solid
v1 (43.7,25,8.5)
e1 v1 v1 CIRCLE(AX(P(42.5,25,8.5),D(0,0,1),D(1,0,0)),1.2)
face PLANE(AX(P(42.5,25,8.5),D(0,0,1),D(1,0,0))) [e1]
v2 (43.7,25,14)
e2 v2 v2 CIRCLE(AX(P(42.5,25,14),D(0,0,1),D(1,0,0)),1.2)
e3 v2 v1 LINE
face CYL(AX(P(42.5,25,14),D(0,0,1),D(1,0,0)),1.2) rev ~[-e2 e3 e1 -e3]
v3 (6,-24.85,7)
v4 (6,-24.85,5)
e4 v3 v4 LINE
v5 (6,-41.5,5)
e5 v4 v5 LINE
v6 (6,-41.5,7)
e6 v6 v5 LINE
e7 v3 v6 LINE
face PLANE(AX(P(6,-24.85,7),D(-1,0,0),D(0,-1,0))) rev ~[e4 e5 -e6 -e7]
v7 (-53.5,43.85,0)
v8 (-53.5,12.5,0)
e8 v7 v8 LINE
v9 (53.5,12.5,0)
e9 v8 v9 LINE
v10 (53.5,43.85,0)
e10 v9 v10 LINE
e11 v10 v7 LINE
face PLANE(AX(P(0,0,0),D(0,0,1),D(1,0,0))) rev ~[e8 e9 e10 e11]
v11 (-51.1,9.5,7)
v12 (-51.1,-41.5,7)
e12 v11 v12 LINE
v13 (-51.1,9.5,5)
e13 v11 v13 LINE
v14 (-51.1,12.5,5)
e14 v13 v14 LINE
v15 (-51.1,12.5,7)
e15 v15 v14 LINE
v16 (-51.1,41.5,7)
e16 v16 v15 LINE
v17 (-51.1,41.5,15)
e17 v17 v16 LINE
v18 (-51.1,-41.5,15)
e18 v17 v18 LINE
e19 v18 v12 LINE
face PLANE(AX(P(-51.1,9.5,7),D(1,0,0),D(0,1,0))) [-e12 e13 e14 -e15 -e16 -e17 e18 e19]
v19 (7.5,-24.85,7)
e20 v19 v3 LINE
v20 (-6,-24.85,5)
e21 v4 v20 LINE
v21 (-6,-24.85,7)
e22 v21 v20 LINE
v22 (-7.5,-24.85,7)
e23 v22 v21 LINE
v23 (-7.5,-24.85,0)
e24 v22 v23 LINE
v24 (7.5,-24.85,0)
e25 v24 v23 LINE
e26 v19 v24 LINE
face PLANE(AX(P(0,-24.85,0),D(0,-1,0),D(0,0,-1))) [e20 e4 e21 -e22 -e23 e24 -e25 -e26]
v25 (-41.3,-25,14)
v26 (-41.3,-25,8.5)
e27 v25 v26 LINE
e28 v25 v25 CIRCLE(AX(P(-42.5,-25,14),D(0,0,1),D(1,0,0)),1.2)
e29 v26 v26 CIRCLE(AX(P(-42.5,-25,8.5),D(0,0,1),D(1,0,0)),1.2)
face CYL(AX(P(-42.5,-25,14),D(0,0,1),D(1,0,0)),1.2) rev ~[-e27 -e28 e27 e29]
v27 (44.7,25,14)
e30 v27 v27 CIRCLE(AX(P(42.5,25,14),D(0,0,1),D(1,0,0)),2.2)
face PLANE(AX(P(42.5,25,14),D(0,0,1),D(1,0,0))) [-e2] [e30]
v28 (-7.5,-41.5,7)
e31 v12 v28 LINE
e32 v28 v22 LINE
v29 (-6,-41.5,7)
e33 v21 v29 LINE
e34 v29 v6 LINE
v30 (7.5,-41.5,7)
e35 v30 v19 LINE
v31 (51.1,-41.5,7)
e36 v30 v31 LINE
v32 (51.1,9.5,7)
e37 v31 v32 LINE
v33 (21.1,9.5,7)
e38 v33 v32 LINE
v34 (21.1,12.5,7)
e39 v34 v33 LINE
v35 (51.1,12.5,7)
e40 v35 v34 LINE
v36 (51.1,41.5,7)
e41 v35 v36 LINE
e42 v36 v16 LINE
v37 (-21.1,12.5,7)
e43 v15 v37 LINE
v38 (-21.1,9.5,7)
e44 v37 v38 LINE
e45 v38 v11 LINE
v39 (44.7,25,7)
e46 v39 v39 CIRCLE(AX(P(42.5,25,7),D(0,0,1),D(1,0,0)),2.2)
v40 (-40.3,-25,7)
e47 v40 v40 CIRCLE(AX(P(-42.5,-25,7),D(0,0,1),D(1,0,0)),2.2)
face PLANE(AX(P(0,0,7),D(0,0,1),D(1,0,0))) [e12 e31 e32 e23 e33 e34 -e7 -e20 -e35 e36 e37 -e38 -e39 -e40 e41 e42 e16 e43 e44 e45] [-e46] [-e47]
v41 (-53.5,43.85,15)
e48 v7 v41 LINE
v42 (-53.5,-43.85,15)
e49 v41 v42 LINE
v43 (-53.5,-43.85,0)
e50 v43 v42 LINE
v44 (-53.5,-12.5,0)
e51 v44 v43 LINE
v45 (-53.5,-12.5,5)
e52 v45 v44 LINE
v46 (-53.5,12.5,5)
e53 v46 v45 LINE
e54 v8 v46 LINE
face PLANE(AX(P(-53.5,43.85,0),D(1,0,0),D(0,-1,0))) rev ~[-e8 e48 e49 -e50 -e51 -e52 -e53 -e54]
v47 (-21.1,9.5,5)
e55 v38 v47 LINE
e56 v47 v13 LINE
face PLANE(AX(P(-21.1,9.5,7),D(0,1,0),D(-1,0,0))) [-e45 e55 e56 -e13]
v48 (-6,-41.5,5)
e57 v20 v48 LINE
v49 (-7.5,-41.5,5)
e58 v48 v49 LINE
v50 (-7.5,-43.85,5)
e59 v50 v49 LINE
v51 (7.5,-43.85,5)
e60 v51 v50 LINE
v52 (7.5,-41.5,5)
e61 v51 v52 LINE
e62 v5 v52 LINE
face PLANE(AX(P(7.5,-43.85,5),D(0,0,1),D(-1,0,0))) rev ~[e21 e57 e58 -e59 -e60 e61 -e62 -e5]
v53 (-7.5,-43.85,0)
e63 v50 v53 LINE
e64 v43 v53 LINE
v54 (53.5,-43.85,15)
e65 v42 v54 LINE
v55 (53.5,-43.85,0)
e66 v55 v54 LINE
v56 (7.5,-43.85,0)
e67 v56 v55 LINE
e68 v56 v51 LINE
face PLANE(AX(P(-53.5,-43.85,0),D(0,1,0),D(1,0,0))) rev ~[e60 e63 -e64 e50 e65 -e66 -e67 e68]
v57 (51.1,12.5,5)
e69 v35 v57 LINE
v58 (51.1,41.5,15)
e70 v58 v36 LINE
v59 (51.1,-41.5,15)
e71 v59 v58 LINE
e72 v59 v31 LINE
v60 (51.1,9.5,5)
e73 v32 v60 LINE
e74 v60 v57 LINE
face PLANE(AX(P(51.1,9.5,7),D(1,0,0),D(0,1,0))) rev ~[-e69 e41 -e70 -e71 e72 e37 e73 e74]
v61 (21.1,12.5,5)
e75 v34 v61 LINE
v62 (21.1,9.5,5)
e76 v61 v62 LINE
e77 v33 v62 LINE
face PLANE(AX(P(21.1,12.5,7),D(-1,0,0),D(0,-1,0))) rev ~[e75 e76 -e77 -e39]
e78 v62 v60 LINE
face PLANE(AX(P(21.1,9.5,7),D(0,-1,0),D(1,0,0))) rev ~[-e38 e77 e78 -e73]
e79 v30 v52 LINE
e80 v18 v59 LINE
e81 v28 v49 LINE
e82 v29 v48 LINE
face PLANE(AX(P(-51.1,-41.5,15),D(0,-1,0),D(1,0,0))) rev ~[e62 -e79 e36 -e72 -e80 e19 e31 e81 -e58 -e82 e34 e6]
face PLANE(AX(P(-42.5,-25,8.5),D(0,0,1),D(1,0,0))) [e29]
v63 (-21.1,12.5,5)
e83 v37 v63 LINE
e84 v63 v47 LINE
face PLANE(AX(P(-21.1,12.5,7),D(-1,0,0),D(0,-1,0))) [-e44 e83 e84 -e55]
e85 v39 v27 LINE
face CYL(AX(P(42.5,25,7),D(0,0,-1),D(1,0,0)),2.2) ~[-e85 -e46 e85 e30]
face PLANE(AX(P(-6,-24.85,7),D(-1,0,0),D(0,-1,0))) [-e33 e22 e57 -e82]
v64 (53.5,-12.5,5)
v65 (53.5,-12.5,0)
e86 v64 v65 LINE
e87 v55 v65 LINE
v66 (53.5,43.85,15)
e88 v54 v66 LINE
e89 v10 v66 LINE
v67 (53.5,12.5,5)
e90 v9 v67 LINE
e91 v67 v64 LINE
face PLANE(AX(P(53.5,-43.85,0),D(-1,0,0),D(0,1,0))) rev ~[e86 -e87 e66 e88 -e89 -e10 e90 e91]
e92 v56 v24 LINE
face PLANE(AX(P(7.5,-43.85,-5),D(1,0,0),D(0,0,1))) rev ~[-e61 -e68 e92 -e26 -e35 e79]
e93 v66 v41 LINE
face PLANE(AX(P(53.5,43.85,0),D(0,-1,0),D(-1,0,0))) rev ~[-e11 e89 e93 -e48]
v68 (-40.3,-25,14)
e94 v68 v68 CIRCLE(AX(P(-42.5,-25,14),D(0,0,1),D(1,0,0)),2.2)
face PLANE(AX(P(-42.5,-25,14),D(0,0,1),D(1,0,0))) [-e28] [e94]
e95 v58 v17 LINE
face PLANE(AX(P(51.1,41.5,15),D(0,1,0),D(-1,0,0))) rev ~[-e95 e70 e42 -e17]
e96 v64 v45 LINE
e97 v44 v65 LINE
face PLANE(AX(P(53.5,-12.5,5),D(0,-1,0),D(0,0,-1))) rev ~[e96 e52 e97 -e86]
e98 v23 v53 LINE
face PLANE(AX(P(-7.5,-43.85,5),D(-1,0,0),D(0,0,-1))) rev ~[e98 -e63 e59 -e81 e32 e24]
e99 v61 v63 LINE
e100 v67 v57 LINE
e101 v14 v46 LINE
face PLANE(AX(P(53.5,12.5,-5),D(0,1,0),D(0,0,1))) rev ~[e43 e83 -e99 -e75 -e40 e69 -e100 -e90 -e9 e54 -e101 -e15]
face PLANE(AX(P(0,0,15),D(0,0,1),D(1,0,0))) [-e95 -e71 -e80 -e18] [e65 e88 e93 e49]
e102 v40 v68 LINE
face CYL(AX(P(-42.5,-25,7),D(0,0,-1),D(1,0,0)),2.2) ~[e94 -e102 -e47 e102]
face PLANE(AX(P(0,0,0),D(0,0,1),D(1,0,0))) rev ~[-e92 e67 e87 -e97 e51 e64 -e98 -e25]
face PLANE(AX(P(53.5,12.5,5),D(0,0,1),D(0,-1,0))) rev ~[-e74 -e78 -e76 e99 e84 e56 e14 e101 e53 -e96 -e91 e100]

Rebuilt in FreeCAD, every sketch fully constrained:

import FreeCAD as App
import Part
import Sketcher
from FreeCAD import Vector

doc = App.newDocument("Part")
body = doc.addObject("PartDesign::Body", "Body")

# Sketch on XY plane
sketch1 = doc.addObject("Sketcher::SketchObject", "Sketch")
body.addObject(sketch1)
sketch1.AttachmentSupport = (doc.XY_Plane, [""])
sketch1.MapMode = "FlatFace"
sketch1.addGeometry([
    Part.LineSegment(Vector(-54, -44, 0), Vector(54, -44, 0)),
    Part.LineSegment(Vector(54, -44, 0), Vector(54, 44, 0)),
    Part.LineSegment(Vector(54, 44, 0), Vector(-54, 44, 0)),
    Part.LineSegment(Vector(-54, 44, 0), Vector(-54, -44, 0)),
], False)
sketch1.addConstraint([
    Sketcher.Constraint("Coincident", 0, 2, 1, 1),
    Sketcher.Constraint("Coincident", 1, 2, 2, 1),
    Sketcher.Constraint("Coincident", 2, 2, 3, 1),
    Sketcher.Constraint("Coincident", 3, 2, 0, 1),
    Sketcher.Constraint("Horizontal", 0),
    Sketcher.Constraint("Vertical", 1),
    Sketcher.Constraint("Horizontal", 2),
    Sketcher.Constraint("Vertical", 3),
    Sketcher.Constraint("Symmetric", 0, 2, 2, 2, -1, 1),
    Sketcher.Constraint("DistanceX", 0, 1, 0, 2, 107.0),
    Sketcher.Constraint("DistanceY", 1, 1, 1, 2, 87.7),
])
pad1 = doc.addObject("PartDesign::Pad", "Pad")
body.addObject(pad1)
pad1.Profile = sketch1
pad1.Length = 15

# Sketch on XZ plane
sketch2 = doc.addObject("Sketcher::SketchObject", "Sketch001")
body.addObject(sketch2)
sketch2.AttachmentSupport = (doc.XZ_Plane, [""])
sketch2.MapMode = "FlatFace"
sketch2.AttachmentOffset = App.Placement(Vector(0, 0, 43.85), App.Rotation())
sketch2.addGeometry([
    Part.LineSegment(Vector(8, -5, 0), Vector(8, 5, 0)),
    Part.LineSegment(Vector(8, 5, 0), Vector(-8, 5, 0)),
    Part.LineSegment(Vector(-8, 5, 0), Vector(-8, -5, 0)),
    Part.LineSegment(Vector(-8, -5, 0), Vector(8, -5, 0)),
], False)
sketch2.addConstraint([
    Sketcher.Constraint("Coincident", 0, 2, 1, 1),
    Sketcher.Constraint("Coincident", 1, 2, 2, 1),
    Sketcher.Constraint("Coincident", 2, 2, 3, 1),
    Sketcher.Constraint("Coincident", 3, 2, 0, 1),
    Sketcher.Constraint("Vertical", 0),
    Sketcher.Constraint("Horizontal", 1),
    Sketcher.Constraint("Vertical", 2),
    Sketcher.Constraint("Horizontal", 3),
    Sketcher.Constraint("Symmetric", 0, 2, 2, 2, -1, 1),
    Sketcher.Constraint("DistanceX", 1, 2, 1, 1, 15.0),
    Sketcher.Constraint("DistanceY", 0, 1, 0, 2, 10.0),
])
pocket1 = doc.addObject("PartDesign::Pocket", "Pocket")
body.addObject(pocket1)
pocket1.Profile = sketch2
pocket1.Length = 19

# Sketch on YZ plane
sketch3 = doc.addObject("Sketcher::SketchObject", "Sketch002")
body.addObject(sketch3)
sketch3.AttachmentSupport = (doc.YZ_Plane, [""])
sketch3.MapMode = "FlatFace"
sketch3.AttachmentOffset = App.Placement(Vector(0, 0, 53.5), App.Rotation())
sketch3.addGeometry([
    Part.LineSegment(Vector(12, -5, 0), Vector(12, 5, 0)),
    Part.LineSegment(Vector(12, 5, 0), Vector(-12, 5, 0)),
    Part.LineSegment(Vector(-12, 5, 0), Vector(-12, -5, 0)),
    Part.LineSegment(Vector(-12, -5, 0), Vector(12, -5, 0)),
], False)
sketch3.addConstraint([
    Sketcher.Constraint("Coincident", 0, 2, 1, 1),
    Sketcher.Constraint("Coincident", 1, 2, 2, 1),
    Sketcher.Constraint("Coincident", 2, 2, 3, 1),
    Sketcher.Constraint("Coincident", 3, 2, 0, 1),
    Sketcher.Constraint("Vertical", 0),
    Sketcher.Constraint("Horizontal", 1),
    Sketcher.Constraint("Vertical", 2),
    Sketcher.Constraint("Horizontal", 3),
    Sketcher.Constraint("Symmetric", 0, 2, 2, 2, -1, 1),
    Sketcher.Constraint("DistanceX", 1, 2, 1, 1, 25.0),
    Sketcher.Constraint("DistanceY", 0, 1, 0, 2, 10.0),
])
pocket2 = doc.addObject("PartDesign::Pocket", "Pocket001")
body.addObject(pocket2)
pocket2.Profile = sketch3
pocket2.Length = 125.4573

# Sketch on XY plane
sketch4 = doc.addObject("Sketcher::SketchObject", "Sketch003")
body.addObject(sketch4)
sketch4.AttachmentSupport = (doc.XY_Plane, [""])
sketch4.MapMode = "FlatFace"
sketch4.AttachmentOffset = App.Placement(Vector(0, 0, 15), App.Rotation())
sketch4.addGeometry([
    Part.LineSegment(Vector(-51, -42, 0), Vector(51, -42, 0)),
    Part.LineSegment(Vector(51, -42, 0), Vector(51, 42, 0)),
    Part.LineSegment(Vector(51, 42, 0), Vector(-51, 42, 0)),
    Part.LineSegment(Vector(-51, 42, 0), Vector(-51, -42, 0)),
], False)
sketch4.addConstraint([
    Sketcher.Constraint("Coincident", 0, 2, 1, 1),
    Sketcher.Constraint("Coincident", 1, 2, 2, 1),
    Sketcher.Constraint("Coincident", 2, 2, 3, 1),
    Sketcher.Constraint("Coincident", 3, 2, 0, 1),
    Sketcher.Constraint("Horizontal", 0),
    Sketcher.Constraint("Vertical", 1),
    Sketcher.Constraint("Horizontal", 2),
    Sketcher.Constraint("Vertical", 3),
    Sketcher.Constraint("Symmetric", 0, 2, 2, 2, -1, 1),
    Sketcher.Constraint("DistanceY", 1, 1, 1, 2, 83.0),
    Sketcher.Constraint("DistanceX", 0, 1, 0, 2, 102.2),
])
pocket3 = doc.addObject("PartDesign::Pocket", "Pocket002")
body.addObject(pocket3)
pocket3.Profile = sketch4
pocket3.Length = 8

# Sketch on XY plane
sketch5 = doc.addObject("Sketcher::SketchObject", "Sketch004")
body.addObject(sketch5)
sketch5.AttachmentSupport = (doc.XY_Plane, [""])
sketch5.MapMode = "FlatFace"
sketch5.AttachmentOffset = App.Placement(Vector(0, 0, 7), App.Rotation())
sketch5.addGeometry([
    Part.Circle(Vector(-42.5, -25, 0), Vector(0, 0, 1), 2.2),
    Part.Circle(Vector(42.5, 25, 0), Vector(0, 0, 1), 2.2),
], False)
sketch5.addConstraint([
    Sketcher.Constraint("Equal", 0, 1),
    Sketcher.Constraint("Symmetric", 0, 3, 1, 3, -1, 1),
    Sketcher.Constraint("Diameter", 0, 4.4),
    Sketcher.Constraint("DistanceY", 0, 3, -1, 1, 25.0),
    Sketcher.Constraint("DistanceX", 0, 3, 1, 3, 85.0),
])
pad2 = doc.addObject("PartDesign::Pad", "Pad001")
body.addObject(pad2)
pad2.Profile = sketch5
pad2.Length = 7

# Sketch on XY plane
sketch6 = doc.addObject("Sketcher::SketchObject", "Sketch005")
body.addObject(sketch6)
sketch6.AttachmentSupport = (doc.XY_Plane, [""])
sketch6.MapMode = "FlatFace"
sketch6.AttachmentOffset = App.Placement(Vector(0, 0, 7), App.Rotation())
sketch6.addGeometry([
    Part.LineSegment(Vector(6, -41.5, 0), Vector(7.5, -41.5, 0)),  # 0
    Part.LineSegment(Vector(7.5, -41.5, 0), Vector(7.5, -24.9, 0)),  # 1
    Part.LineSegment(Vector(7.5, -24.9, 0), Vector(6, -24.9, 0)),  # 2
    Part.LineSegment(Vector(6, -24.9, 0), Vector(6, -41.5, 0)),  # 3
    Part.LineSegment(Vector(-6, -41.5, 0), Vector(-6, -24.9, 0)),  # 4
    Part.LineSegment(Vector(-6, -24.9, 0), Vector(-7.5, -24.9, 0)),  # 5
    Part.LineSegment(Vector(-7.5, -24.9, 0), Vector(-7.5, -41.5, 0)),  # 6
    Part.LineSegment(Vector(-7.5, -41.5, 0), Vector(-6, -41.5, 0)),  # 7
], False)
sketch6.addConstraint([
    Sketcher.Constraint("Coincident", 0, 2, 1, 1),
    Sketcher.Constraint("Coincident", 1, 2, 2, 1),
    Sketcher.Constraint("Coincident", 2, 2, 3, 1),
    Sketcher.Constraint("Coincident", 3, 2, 0, 1),
    Sketcher.Constraint("Coincident", 4, 2, 5, 1),
    Sketcher.Constraint("Coincident", 5, 2, 6, 1),
    Sketcher.Constraint("Coincident", 6, 2, 7, 1),
    Sketcher.Constraint("Coincident", 7, 2, 4, 1),
    Sketcher.Constraint("Horizontal", 0),
    Sketcher.Constraint("Vertical", 1),
    Sketcher.Constraint("Horizontal", 2),
    Sketcher.Constraint("Vertical", 3),
    Sketcher.Constraint("Vertical", 4),
    Sketcher.Constraint("Horizontal", 5),
    Sketcher.Constraint("Vertical", 6),
    Sketcher.Constraint("Horizontal", 7),
    Sketcher.Constraint("Symmetric", 2, 2, 4, 2, -2),
    Sketcher.Constraint("Symmetric", 0, 2, 6, 2, -2),
    Sketcher.Constraint("DistanceX", 0, 1, 0, 2, 1.5),
    Sketcher.Constraint("DistanceX", -1, 1, 2, 2, 6.0),
    Sketcher.Constraint("DistanceY", 1, 1, 1, 2, 16.65),
    Sketcher.Constraint("DistanceY", 0, 2, -1, 1, 41.5),
])
pocket4 = doc.addObject("PartDesign::Pocket", "Pocket003")
body.addObject(pocket4)
pocket4.Profile = sketch6
pocket4.Length = 21

# Sketch on XY plane
sketch7 = doc.addObject("Sketcher::SketchObject", "Sketch006")
body.addObject(sketch7)
sketch7.AttachmentSupport = (doc.XY_Plane, [""])
sketch7.MapMode = "FlatFace"
sketch7.AttachmentOffset = App.Placement(Vector(0, 0, 7), App.Rotation())
sketch7.addGeometry([
    Part.LineSegment(Vector(-21.1, 12.5, 0), Vector(-51.1, 12.5, 0)),  # 0
    Part.LineSegment(Vector(-51.1, 12.5, 0), Vector(-51.1, 9.5, 0)),  # 1
    Part.LineSegment(Vector(-51.1, 9.5, 0), Vector(-21.1, 9.5, 0)),  # 2
    Part.LineSegment(Vector(-21.1, 9.5, 0), Vector(-21.1, 12.5, 0)),  # 3
    Part.LineSegment(Vector(51.1, 9.5, 0), Vector(51.1, 12.5, 0)),  # 4
    Part.LineSegment(Vector(51.1, 12.5, 0), Vector(21.1, 12.5, 0)),  # 5
    Part.LineSegment(Vector(21.1, 12.5, 0), Vector(21.1, 9.5, 0)),  # 6
    Part.LineSegment(Vector(21.1, 9.5, 0), Vector(51.1, 9.5, 0)),  # 7
], False)
sketch7.addConstraint([
    Sketcher.Constraint("Coincident", 0, 2, 1, 1),
    Sketcher.Constraint("Coincident", 1, 2, 2, 1),
    Sketcher.Constraint("Coincident", 2, 2, 3, 1),
    Sketcher.Constraint("Coincident", 3, 2, 0, 1),
    Sketcher.Constraint("Coincident", 4, 2, 5, 1),
    Sketcher.Constraint("Coincident", 5, 2, 6, 1),
    Sketcher.Constraint("Coincident", 6, 2, 7, 1),
    Sketcher.Constraint("Coincident", 7, 2, 4, 1),
    Sketcher.Constraint("Horizontal", 0),
    Sketcher.Constraint("Vertical", 1),
    Sketcher.Constraint("Horizontal", 2),
    Sketcher.Constraint("Vertical", 3),
    Sketcher.Constraint("Vertical", 4),
    Sketcher.Constraint("Horizontal", 5),
    Sketcher.Constraint("Vertical", 6),
    Sketcher.Constraint("Horizontal", 7),
    Sketcher.Constraint("Symmetric", 0, 2, 4, 2, -2),
    Sketcher.Constraint("Symmetric", 2, 2, 6, 2, -2),
    Sketcher.Constraint("DistanceX", 0, 2, 0, 1, 30.0),
    Sketcher.Constraint("DistanceY", 1, 2, 1, 1, 3.0),
    Sketcher.Constraint("DistanceX", 0, 2, -1, 1, 51.1),
    Sketcher.Constraint("DistanceY", -1, 1, 0, 2, 12.5),
])
pocket5 = doc.addObject("PartDesign::Pocket", "Pocket004")
body.addObject(pocket5)
pocket5.Profile = sketch7
pocket5.Length = 84

# Sketch on XY plane
sketch8 = doc.addObject("Sketcher::SketchObject", "Sketch007")
body.addObject(sketch8)
sketch8.AttachmentSupport = (doc.XY_Plane, [""])
sketch8.MapMode = "FlatFace"
sketch8.AttachmentOffset = App.Placement(Vector(0, 0, 14), App.Rotation())
sketch8.addGeometry([
    Part.Circle(Vector(-42.5, -25, 0), Vector(0, 0, 1), 1.2),
    Part.Circle(Vector(42.5, 25, 0), Vector(0, 0, 1), 1.2),
], False)
sketch8.addConstraint([
    Sketcher.Constraint("Equal", 0, 1),
    Sketcher.Constraint("Symmetric", 0, 3, 1, 3, -1, 1),
    Sketcher.Constraint("Diameter", 0, 2.4),
    Sketcher.Constraint("DistanceY", 0, 3, -1, 1, 25.0),
    Sketcher.Constraint("DistanceX", 0, 3, 1, 3, 85.0),
])
pocket6 = doc.addObject("PartDesign::Pocket", "Pocket005")
body.addObject(pocket6)
pocket6.Profile = sketch8
pocket6.Length = 5.5

doc.recompute()
